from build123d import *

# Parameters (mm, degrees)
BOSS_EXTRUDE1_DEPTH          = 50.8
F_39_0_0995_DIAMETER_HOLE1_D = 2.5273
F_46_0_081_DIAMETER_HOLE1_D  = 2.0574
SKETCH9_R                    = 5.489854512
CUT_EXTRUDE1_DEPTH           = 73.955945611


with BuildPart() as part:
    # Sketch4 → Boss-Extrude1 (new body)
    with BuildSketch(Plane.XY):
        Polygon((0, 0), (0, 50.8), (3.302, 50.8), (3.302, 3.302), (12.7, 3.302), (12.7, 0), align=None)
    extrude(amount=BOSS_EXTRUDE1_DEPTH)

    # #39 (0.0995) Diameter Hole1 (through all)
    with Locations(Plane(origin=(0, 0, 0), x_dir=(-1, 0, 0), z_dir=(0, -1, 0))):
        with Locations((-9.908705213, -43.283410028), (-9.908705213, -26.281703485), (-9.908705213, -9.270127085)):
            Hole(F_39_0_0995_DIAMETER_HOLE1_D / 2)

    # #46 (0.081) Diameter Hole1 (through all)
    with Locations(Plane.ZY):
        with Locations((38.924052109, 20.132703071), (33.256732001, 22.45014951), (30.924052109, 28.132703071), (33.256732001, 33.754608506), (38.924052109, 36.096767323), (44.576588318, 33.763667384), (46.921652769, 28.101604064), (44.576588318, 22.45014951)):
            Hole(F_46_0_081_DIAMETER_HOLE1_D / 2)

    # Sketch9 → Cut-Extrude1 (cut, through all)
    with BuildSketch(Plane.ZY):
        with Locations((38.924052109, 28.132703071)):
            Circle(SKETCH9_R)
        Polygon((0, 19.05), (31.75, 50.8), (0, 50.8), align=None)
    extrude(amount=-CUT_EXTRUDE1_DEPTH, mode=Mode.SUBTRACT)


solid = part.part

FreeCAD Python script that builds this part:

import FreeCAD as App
import Part
import Sketcher
from FreeCAD import Vector
Q = App.Units.Quantity


def add_polygon(sketch, points):
    """Adds a closed chain of lines whose ends are joined by coincident constraints."""
    first, n = sketch.GeometryCount, len(points)
    for a, b in zip(points, points[1:] + points[:1]):
        sketch.addGeometry(Part.LineSegment(App.Vector(*a, 0), App.Vector(*b, 0)), False)
    for i in range(n):
        sketch.addConstraint(Sketcher.Constraint("Coincident", first + i, 2, first + (i + 1) % n, 1))

doc = App.newDocument("Part")
body = doc.addObject("PartDesign::Body", "Body")

# Sketch on XY plane
sketch1 = body.newObject("Sketcher::SketchObject", "Sketch")
sketch1.AttachmentSupport = (doc.getObject("XY_Plane"), [""])
sketch1.MapMode = "FlatFace"
add_polygon(sketch1, [(0, 50.8), (0, 0), (12.7, 0), (12.7, 3.3), (3.3, 3.3), (3.3, 50.8)])  # lines 0-5
sketch1.addConstraint(Sketcher.Constraint("Vertical", 0))
sketch1.addConstraint(Sketcher.Constraint("Horizontal", 1))
sketch1.addConstraint(Sketcher.Constraint("Vertical", 2))
sketch1.addConstraint(Sketcher.Constraint("Horizontal", 3))
sketch1.addConstraint(Sketcher.Constraint("Vertical", 4))
sketch1.addConstraint(Sketcher.Constraint("Horizontal", 5))
sketch1.addConstraint(Sketcher.Constraint("Coincident", 0, 2, -1, 1))
sketch1.addConstraint(Sketcher.Constraint("Equal", 5, 2))
sketch1.addConstraint(Sketcher.Constraint("DistanceY", 0, 2, 0, 1, Q("2 in")))
sketch1.addConstraint(Sketcher.Constraint("DistanceX", 1, 1, 1, 2, Q("0.5 in")))
sketch1.addConstraint(Sketcher.Constraint("DistanceX", 3, 2, 3, 1, Q("0.37 in")))
pad1 = body.newObject("PartDesign::Pad", "Pad")
pad1.Profile = sketch1
pad1.Length = Q("2 in")

# Sketch on XZ plane
sketch2 = body.newObject("Sketcher::SketchObject", "Sketch001")
sketch2.AttachmentSupport = (doc.getObject("XZ_Plane"), [""])
sketch2.MapMode = "FlatFace"
sketch2.addGeometry(Part.Circle(Vector(9.9, 43.3, 0), Vector(0, 0, 1), 1.3), False)
sketch2.addGeometry(Part.Circle(Vector(9.9, 26.3, 0), Vector(0, 0, 1), 1.3), False)
sketch2.addGeometry(Part.Circle(Vector(9.9, 9.3, 0), Vector(0, 0, 1), 1.3), False)
sketch2.addConstraint(Sketcher.Constraint("Equal", 0, 1))
sketch2.addConstraint(Sketcher.Constraint("Equal", 1, 2))
sketch2.addConstraint(Sketcher.Constraint("Vertical", 0, 3, 1, 3))
sketch2.addConstraint(Sketcher.Constraint("Vertical", 1, 3, 2, 3))
sketch2.addConstraint(Sketcher.Constraint("Diameter", 0, Q("0.0995 in")))
sketch2.addConstraint(Sketcher.Constraint("DistanceY", -1, 1, 0, 3, Q("43.28341 mm")))
sketch2.addConstraint(Sketcher.Constraint("DistanceX", -1, 1, 0, 3, Q("9.908705 mm")))
sketch2.addConstraint(Sketcher.Constraint("DistanceY", -1, 1, 1, 3, Q("26.281703 mm")))
sketch2.addConstraint(Sketcher.Constraint("DistanceY", -1, 1, 2, 3, Q("9.270127 mm")))
doc.recompute()
hole = body.newObject("PartDesign::Hole", "Hole")
hole.Profile = sketch2
hole.ThreadType = "None"
hole.Diameter = Q("0.0995 in")
hole.DepthType = "ThroughAll"

# Sketch on YZ plane
sketch3 = body.newObject("Sketcher::SketchObject", "Sketch002")
sketch3.AttachmentSupport = (doc.getObject("YZ_Plane"), [""])
sketch3.MapMode = "FlatFace"
sketch3.addGeometry(Part.Circle(Vector(20.1, 38.9, 0), Vector(0, 0, 1), 1), False)
sketch3.addGeometry(Part.Circle(Vector(22.5, 33.3, 0), Vector(0, 0, 1), 1), False)
sketch3.addGeometry(Part.Circle(Vector(28.1, 30.9, 0), Vector(0, 0, 1), 1), False)
sketch3.addGeometry(Part.Circle(Vector(33.8, 33.3, 0), Vector(0, 0, 1), 1), False)
sketch3.addGeometry(Part.Circle(Vector(36.1, 38.9, 0), Vector(0, 0, 1), 1), False)
sketch3.addGeometry(Part.Circle(Vector(33.8, 44.6, 0), Vector(0, 0, 1), 1), False)
sketch3.addGeometry(Part.Circle(Vector(28.1, 46.9, 0), Vector(0, 0, 1), 1), False)
sketch3.addGeometry(Part.Circle(Vector(22.5, 44.6, 0), Vector(0, 0, 1), 1), False)
sketch3.addConstraint(Sketcher.Constraint("Equal", 0, 1))
sketch3.addConstraint(Sketcher.Constraint("Equal", 1, 2))
sketch3.addConstraint(Sketcher.Constraint("Equal", 2, 3))
sketch3.addConstraint(Sketcher.Constraint("Equal", 3, 4))
sketch3.addConstraint(Sketcher.Constraint("Equal", 4, 5))
sketch3.addConstraint(Sketcher.Constraint("Equal", 5, 6))
sketch3.addConstraint(Sketcher.Constraint("Equal", 6, 7))
sketch3.addConstraint(Sketcher.Constraint("Horizontal", 1, 3, 3, 3))
sketch3.addConstraint(Sketcher.Constraint("Horizontal", 0, 3, 4, 3))
sketch3.addConstraint(Sketcher.Constraint("Horizontal", 5, 3, 7, 3))
sketch3.addConstraint(Sketcher.Constraint("Vertical", 1, 3, 7, 3))
sketch3.addConstraint(Sketcher.Constraint("Diameter", 0, Q("0.081 in")))
sketch3.addConstraint(Sketcher.Constraint("DistanceX", 0, 3, 2, 3, Q("8 mm")))
sketch3.addConstraint(Sketcher.Constraint("DistanceY", 2, 3, 0, 3, Q("8 mm")))
sketch3.addConstraint(Sketcher.Constraint("DistanceX", 5, 3, 4, 3, Q("2.3331 mm")))
sketch3.addConstraint(Sketcher.Constraint("DistanceX", 0, 3, 6, 3, Q("7.968901 mm")))
sketch3.addConstraint(Sketcher.Constraint("DistanceY", 0, 3, 6, 3, Q("7.997601 mm")))
sketch3.addConstraint(Sketcher.Constraint("DistanceX", -1, 1, 1, 3, Q("22.45015 mm")))
sketch3.addConstraint(Sketcher.Constraint("DistanceX", -1, 1, 3, 3, Q("33.754609 mm")))
sketch3.addConstraint(Sketcher.Constraint("DistanceY", -1, 1, 5, 3, Q("44.576588 mm")))
sketch3.addConstraint(Sketcher.Constraint("DistanceY", 1, 3, 0, 3, Q("5.66732 mm")))
sketch3.addConstraint(Sketcher.Constraint("DistanceX", 3, 3, 4, 3, Q("2.342159 mm")))
sketch3.addConstraint(Sketcher.Constraint("DistanceX", -1, 1, 0, 3, Q("20.132703 mm")))
sketch3.addConstraint(Sketcher.Constraint("DistanceY", -1, 1, 0, 3, Q("38.924052 mm")))
doc.recompute()
hole2 = body.newObject("PartDesign::Hole", "Hole001")
hole2.Profile = sketch3
hole2.ThreadType = "None"
hole2.Diameter = Q("0.081 in")
hole2.DepthType = "ThroughAll"
hole2.Reversed = True

# Sketch on YZ plane
sketch4 = body.newObject("Sketcher::SketchObject", "Sketch003")
sketch4.AttachmentSupport = (doc.getObject("YZ_Plane"), [""])
sketch4.MapMode = "FlatFace"
sketch4.addGeometry(Part.Circle(Vector(28, 39, 0), Vector(0, 0, 1), 5), False)  # 0
add_polygon(sketch4, [(19, 0), (51, 32), (51, 0)])  # lines 1-3
sketch4.addConstraint(Sketcher.Constraint("Vertical", 2))
sketch4.addConstraint(Sketcher.Constraint("Horizontal", 3))
sketch4.addConstraint(Sketcher.Constraint("PointOnObject", 2, 2, -1))
sketch4.addConstraint(Sketcher.Constraint("Equal", 3, 2))
sketch4.addConstraint(Sketcher.Constraint("DistanceX", -1, 1, 1, 2, Q("2 in")))
sketch4.addConstraint(Sketcher.Constraint("DistanceX", 3, 2, 3, 1, Q("1.25 in")))
sketch4.addConstraint(Sketcher.Constraint("Diameter", 0, Q("10.979709 mm")))
sketch4.addConstraint(Sketcher.Constraint("DistanceX", -1, 1, 0, 3, Q("28.132703 mm")))
sketch4.addConstraint(Sketcher.Constraint("DistanceY", -1, 1, 0, 3, Q("38.924052 mm")))
pocket1 = body.newObject("PartDesign::Pocket", "Pocket")
pocket1.Profile = sketch4
pocket1.Type = "ThroughAll"
pocket1.Reversed = True

doc.recompute()
